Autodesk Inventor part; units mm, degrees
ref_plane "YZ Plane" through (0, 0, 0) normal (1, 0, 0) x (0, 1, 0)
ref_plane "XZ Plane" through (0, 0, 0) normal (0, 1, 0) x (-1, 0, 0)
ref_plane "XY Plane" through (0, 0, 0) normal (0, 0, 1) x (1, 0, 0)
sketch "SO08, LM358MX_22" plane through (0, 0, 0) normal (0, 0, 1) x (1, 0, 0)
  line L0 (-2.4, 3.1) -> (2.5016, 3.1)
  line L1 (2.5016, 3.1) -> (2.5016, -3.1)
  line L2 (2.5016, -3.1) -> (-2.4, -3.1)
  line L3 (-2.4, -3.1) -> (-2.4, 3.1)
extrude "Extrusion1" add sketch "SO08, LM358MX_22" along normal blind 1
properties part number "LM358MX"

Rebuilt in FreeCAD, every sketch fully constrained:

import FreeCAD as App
import Part
import Sketcher


def add_polygon(sketch, points):
    """Adds a closed chain of lines whose ends are joined by coincident constraints."""
    first, n = sketch.GeometryCount, len(points)
    for a, b in zip(points, points[1:] + points[:1]):
        sketch.addGeometry(Part.LineSegment(App.Vector(*a, 0), App.Vector(*b, 0)), False)
    for i in range(n):
        sketch.addConstraint(Sketcher.Constraint("Coincident", first + i, 2, first + (i + 1) % n, 1))

doc = App.newDocument("Part")
body = doc.addObject("PartDesign::Body", "Body")

sketch1 = body.newObject("Sketcher::SketchObject", "Sketch")
sketch1.AttachmentSupport = (doc.getObject("XY_Plane"), [""])
sketch1.MapMode = "FlatFace"
add_polygon(sketch1, [(2.5, 3.1), (-2.4, 3.1), (-2.4, -3.1), (2.5, -3.1)])
sketch1.addConstraint(Sketcher.Constraint("Horizontal", 0))
sketch1.addConstraint(Sketcher.Constraint("Vertical", 1))
sketch1.addConstraint(Sketcher.Constraint("Horizontal", 2))
sketch1.addConstraint(Sketcher.Constraint("Vertical", 3))
sketch1.addConstraint(Sketcher.Constraint("DistanceY", 1, 2, 1, 1, 6.2))
sketch1.addConstraint(Sketcher.Constraint("DistanceX", 0, 2, -1, 1, 2.4))
sketch1.addConstraint(Sketcher.Constraint("DistanceY", -1, 1, 0, 2, 3.1))
sketch1.addConstraint(Sketcher.Constraint("DistanceX", 0, 2, 0, 1, 4.9016))
pad1 = body.newObject("PartDesign::Pad", "Pad")
pad1.Profile = sketch1
pad1.Length = 1

doc.recompute()
